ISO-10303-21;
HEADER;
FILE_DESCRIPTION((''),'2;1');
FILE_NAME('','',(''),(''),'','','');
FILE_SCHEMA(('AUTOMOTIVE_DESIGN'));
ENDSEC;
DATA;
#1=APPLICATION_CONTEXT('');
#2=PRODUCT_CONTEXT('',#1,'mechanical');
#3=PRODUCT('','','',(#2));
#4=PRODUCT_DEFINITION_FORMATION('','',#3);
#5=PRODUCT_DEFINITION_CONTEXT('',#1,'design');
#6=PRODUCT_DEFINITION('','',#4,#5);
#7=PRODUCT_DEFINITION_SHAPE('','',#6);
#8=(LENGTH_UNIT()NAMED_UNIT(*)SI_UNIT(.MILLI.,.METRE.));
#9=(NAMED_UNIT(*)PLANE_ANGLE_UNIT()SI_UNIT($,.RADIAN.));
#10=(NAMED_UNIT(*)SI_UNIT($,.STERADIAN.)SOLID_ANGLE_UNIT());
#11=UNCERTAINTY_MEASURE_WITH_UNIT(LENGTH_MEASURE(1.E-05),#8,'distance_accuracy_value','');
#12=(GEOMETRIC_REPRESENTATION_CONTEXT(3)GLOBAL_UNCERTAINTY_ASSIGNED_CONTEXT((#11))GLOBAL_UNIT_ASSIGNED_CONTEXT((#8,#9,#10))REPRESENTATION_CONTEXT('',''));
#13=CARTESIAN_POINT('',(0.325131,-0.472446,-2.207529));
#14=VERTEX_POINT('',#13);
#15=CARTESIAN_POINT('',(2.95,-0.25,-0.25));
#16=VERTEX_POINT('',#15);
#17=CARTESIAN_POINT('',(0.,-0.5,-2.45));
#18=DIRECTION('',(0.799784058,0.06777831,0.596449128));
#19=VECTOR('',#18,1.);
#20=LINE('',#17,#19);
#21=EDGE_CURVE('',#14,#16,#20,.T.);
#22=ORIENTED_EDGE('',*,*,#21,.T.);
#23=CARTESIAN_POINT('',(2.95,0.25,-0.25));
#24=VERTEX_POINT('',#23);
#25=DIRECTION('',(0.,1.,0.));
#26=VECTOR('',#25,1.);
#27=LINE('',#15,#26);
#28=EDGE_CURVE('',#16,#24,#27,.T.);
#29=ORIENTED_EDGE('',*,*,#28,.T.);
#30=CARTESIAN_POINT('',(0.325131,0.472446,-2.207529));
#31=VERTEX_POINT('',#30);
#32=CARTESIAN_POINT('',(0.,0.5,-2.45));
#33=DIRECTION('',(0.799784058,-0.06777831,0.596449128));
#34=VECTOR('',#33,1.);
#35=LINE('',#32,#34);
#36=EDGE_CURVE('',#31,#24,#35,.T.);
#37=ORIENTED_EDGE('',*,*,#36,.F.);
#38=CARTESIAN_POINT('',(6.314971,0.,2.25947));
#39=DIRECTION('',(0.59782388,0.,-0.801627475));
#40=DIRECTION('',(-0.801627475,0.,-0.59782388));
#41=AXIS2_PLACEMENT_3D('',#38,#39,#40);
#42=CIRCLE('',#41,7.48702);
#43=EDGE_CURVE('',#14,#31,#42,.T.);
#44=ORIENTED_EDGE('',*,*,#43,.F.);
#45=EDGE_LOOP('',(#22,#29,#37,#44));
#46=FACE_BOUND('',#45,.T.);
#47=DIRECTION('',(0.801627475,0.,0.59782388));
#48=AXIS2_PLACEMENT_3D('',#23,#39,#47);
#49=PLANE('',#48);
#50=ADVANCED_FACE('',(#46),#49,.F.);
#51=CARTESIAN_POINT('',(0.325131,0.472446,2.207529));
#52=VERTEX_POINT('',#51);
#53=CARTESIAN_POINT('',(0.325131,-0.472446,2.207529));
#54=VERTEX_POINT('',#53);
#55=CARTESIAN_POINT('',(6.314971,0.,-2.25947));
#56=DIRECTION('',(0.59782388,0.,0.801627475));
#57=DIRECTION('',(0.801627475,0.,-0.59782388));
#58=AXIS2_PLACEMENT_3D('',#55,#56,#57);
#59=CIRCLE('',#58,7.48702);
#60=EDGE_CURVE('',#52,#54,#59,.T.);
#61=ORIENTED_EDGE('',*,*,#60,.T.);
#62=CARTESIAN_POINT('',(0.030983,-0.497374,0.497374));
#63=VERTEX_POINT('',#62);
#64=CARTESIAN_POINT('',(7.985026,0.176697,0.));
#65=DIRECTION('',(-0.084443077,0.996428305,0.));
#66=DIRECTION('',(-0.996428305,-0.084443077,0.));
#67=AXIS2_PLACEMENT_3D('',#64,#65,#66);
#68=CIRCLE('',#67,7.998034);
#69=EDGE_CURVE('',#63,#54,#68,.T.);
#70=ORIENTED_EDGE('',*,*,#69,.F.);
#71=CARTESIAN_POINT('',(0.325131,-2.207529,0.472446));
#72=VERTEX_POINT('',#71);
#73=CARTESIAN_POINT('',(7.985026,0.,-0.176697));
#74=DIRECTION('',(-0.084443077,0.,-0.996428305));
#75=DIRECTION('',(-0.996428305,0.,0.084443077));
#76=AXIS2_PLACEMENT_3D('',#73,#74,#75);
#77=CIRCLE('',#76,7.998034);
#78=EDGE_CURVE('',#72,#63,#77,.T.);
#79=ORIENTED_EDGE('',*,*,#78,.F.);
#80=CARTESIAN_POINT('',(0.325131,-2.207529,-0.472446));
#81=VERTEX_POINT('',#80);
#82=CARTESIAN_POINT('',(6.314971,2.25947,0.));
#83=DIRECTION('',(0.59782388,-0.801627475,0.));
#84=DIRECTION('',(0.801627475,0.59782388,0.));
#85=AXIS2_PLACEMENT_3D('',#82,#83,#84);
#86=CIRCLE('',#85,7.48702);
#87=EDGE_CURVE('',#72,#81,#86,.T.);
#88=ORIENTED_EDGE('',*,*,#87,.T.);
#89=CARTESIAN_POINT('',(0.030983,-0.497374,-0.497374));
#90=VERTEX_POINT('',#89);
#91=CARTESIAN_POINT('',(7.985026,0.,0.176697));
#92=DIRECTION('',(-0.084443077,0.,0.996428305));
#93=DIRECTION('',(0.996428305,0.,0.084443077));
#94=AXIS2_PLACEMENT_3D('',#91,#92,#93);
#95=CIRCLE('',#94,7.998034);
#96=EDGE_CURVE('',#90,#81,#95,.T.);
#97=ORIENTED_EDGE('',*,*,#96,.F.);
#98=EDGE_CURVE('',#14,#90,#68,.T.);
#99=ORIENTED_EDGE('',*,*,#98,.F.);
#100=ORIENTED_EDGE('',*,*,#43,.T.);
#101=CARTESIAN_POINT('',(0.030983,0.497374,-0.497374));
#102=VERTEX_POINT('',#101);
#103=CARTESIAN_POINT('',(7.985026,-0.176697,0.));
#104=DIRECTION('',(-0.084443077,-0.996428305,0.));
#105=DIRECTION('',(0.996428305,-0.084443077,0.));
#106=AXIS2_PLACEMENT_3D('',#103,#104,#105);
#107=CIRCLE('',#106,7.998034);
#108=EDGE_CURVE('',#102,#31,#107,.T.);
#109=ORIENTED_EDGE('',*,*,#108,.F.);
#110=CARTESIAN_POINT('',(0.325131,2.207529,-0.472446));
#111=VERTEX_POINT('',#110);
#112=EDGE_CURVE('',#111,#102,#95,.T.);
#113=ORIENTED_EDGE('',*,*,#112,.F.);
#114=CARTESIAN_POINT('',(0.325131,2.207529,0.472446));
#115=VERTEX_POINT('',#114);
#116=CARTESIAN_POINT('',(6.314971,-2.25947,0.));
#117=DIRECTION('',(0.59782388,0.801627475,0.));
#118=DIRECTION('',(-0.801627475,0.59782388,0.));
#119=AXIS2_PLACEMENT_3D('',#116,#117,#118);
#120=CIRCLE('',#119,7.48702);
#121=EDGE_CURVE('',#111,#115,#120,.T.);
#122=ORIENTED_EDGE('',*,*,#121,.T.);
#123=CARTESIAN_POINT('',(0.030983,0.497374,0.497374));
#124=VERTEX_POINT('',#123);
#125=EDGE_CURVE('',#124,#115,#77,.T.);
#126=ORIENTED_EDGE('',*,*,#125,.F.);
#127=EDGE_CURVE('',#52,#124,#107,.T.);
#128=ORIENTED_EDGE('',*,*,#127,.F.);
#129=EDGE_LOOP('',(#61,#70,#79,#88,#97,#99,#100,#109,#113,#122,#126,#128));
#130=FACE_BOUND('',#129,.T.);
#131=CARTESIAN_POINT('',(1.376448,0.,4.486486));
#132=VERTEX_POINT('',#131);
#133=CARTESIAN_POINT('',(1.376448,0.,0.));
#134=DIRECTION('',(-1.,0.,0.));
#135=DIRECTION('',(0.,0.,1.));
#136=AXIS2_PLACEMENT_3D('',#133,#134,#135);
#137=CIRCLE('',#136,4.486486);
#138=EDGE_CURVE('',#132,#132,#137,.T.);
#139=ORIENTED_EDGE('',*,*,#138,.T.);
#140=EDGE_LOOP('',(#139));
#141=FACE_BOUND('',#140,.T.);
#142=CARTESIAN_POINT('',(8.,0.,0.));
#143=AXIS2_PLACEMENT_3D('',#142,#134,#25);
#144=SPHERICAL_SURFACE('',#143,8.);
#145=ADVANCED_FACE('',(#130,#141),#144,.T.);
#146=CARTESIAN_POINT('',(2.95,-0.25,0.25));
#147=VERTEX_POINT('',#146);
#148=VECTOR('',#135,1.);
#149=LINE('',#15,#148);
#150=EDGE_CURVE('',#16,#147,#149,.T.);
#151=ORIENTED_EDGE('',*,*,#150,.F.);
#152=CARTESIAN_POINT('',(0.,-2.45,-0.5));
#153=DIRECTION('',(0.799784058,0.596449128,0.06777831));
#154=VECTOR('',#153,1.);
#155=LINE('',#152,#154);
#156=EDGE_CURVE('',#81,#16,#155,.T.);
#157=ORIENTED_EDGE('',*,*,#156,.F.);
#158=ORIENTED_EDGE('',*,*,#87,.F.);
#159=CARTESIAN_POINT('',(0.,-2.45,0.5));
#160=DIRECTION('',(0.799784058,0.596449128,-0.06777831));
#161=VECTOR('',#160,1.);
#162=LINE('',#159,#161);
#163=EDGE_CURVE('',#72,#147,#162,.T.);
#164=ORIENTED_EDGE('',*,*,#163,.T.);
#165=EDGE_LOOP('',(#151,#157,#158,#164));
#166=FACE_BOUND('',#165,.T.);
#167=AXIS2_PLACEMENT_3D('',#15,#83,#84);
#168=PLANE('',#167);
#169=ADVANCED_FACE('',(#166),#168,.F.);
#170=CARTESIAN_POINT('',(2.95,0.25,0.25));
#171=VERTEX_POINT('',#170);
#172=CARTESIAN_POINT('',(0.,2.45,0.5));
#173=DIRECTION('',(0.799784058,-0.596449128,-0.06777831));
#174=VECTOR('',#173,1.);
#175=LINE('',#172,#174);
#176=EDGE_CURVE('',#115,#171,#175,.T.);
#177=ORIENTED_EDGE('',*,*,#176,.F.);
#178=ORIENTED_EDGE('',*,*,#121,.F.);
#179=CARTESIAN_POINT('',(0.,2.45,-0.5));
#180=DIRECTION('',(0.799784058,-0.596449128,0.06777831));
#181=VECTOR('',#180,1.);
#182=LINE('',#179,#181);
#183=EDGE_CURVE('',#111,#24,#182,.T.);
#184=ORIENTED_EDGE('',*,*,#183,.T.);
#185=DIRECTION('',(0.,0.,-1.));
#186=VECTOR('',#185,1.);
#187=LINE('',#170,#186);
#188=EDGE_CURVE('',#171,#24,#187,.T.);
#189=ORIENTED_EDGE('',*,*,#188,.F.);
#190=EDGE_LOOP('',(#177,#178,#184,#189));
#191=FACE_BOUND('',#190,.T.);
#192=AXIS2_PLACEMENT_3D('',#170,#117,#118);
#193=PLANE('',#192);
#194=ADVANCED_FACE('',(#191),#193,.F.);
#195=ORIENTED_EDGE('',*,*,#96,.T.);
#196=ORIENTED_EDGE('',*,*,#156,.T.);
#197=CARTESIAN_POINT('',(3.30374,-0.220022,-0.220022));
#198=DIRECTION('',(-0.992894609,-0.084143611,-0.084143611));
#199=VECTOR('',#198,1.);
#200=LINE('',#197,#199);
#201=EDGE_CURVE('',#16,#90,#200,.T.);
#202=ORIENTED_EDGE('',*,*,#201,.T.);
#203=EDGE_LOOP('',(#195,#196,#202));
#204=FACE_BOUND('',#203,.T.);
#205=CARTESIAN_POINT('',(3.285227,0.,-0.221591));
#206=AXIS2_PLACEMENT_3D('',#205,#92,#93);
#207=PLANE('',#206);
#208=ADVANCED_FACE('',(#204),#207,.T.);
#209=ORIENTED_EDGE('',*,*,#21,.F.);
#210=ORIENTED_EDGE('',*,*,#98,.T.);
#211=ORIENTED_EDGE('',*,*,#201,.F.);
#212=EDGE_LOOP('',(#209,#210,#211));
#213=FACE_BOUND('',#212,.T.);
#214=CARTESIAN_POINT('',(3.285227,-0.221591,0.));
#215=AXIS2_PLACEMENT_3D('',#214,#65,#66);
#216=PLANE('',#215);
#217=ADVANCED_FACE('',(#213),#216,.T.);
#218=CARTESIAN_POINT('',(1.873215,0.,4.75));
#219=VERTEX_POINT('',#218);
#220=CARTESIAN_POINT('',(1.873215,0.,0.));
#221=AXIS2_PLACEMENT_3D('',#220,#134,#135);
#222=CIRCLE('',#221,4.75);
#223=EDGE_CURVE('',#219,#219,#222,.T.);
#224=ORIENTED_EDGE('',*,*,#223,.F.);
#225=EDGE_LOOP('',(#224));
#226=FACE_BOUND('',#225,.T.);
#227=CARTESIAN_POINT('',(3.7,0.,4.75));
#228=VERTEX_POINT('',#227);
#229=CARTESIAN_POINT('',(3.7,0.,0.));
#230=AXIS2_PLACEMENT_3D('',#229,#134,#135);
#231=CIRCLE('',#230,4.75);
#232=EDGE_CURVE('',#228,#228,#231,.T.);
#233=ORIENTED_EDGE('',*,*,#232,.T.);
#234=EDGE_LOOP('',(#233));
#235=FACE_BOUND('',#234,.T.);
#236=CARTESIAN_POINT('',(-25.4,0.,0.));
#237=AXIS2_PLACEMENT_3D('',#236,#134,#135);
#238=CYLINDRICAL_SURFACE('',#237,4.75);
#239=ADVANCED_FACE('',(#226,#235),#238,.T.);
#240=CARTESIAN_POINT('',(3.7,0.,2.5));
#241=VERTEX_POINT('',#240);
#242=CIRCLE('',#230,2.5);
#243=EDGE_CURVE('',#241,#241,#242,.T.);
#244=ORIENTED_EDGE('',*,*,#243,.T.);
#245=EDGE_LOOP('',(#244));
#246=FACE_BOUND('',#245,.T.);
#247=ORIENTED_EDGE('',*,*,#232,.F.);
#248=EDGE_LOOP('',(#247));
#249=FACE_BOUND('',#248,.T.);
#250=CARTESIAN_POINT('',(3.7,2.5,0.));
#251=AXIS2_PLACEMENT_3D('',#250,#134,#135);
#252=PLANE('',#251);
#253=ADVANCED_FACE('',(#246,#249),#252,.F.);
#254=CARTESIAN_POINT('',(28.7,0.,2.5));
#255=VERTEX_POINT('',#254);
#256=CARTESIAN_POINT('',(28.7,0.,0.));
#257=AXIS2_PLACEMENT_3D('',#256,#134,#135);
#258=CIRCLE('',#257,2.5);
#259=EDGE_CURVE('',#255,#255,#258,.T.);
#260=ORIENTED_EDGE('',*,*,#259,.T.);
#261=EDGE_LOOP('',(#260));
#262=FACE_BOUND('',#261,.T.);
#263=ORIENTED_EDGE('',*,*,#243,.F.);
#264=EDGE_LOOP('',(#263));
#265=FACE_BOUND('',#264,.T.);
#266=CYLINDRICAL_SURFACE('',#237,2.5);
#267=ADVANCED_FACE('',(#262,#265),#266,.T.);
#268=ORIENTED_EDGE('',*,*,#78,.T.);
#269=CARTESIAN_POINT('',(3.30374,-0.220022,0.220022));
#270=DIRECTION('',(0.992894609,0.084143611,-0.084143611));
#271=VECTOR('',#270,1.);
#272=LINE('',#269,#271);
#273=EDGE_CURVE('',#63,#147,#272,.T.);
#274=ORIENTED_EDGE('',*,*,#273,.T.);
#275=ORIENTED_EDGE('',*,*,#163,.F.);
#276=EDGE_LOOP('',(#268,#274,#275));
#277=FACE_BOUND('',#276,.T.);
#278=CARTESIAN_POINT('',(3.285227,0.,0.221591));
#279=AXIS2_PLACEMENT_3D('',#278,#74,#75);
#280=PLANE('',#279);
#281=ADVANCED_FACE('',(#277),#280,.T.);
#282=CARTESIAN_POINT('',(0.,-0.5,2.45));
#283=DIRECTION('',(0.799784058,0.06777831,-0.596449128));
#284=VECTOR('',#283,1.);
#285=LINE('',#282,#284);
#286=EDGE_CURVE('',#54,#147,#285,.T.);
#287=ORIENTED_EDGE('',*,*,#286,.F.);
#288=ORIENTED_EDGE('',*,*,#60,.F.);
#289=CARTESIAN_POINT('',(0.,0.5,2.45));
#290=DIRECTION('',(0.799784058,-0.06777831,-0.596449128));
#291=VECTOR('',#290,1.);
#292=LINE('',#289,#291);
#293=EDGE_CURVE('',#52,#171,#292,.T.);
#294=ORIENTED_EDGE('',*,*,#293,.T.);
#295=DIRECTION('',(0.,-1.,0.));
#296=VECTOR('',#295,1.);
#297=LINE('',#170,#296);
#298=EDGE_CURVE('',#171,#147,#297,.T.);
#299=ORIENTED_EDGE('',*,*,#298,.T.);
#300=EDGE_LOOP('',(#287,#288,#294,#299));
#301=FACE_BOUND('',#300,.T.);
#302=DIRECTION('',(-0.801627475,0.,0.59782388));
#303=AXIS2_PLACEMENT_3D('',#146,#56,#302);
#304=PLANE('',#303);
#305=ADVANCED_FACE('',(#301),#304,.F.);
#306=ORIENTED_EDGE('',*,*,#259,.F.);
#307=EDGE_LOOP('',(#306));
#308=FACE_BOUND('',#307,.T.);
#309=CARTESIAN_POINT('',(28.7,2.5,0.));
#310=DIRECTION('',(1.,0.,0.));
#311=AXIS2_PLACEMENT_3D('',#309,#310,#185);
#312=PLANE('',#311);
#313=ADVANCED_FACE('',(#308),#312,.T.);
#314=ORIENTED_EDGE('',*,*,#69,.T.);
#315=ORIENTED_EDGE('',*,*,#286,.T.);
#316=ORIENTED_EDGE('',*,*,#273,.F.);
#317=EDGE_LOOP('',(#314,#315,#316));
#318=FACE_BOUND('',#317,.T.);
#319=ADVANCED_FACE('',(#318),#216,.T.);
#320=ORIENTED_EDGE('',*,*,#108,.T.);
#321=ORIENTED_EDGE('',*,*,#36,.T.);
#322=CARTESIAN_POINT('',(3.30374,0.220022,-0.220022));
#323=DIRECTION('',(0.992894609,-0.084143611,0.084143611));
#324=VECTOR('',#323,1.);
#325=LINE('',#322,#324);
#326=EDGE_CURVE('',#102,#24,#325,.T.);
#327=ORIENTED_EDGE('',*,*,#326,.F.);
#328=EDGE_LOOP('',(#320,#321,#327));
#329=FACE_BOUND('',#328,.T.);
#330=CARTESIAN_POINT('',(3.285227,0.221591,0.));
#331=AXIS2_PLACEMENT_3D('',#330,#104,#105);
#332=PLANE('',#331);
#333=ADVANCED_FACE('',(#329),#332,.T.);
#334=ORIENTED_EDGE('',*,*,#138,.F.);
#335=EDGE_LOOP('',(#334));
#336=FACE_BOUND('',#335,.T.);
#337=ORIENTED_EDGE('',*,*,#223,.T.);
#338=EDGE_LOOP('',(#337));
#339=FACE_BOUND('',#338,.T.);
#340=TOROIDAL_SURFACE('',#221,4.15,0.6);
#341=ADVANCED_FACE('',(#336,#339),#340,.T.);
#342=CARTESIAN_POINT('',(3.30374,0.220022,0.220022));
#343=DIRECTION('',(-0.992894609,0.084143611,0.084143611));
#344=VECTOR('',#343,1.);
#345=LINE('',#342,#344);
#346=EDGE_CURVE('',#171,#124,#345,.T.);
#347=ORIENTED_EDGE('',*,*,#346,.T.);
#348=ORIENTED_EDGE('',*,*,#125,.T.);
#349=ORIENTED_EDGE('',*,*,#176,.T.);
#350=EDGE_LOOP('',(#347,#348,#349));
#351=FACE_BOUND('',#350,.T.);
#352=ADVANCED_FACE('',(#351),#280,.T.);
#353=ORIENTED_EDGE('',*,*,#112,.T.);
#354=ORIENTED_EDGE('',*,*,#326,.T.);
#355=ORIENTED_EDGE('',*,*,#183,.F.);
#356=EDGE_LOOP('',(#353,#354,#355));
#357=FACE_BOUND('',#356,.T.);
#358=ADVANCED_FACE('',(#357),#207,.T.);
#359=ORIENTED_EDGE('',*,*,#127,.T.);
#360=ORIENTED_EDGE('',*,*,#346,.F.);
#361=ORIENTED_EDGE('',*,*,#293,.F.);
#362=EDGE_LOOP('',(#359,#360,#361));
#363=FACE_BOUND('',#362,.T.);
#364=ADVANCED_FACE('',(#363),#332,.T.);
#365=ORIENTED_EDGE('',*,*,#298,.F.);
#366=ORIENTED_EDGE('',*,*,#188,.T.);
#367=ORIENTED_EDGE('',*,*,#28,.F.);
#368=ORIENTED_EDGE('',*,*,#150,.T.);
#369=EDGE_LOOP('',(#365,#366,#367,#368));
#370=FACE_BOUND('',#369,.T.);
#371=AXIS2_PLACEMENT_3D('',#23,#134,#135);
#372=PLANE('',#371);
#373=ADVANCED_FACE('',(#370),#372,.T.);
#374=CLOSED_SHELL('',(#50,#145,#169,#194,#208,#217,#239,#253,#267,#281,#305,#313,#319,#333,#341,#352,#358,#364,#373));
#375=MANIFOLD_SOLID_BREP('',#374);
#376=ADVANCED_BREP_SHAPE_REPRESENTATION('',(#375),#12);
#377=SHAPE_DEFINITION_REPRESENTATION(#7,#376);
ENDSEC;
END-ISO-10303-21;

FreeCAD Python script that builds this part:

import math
import FreeCAD as App
import Part
import Sketcher


def add_polygon(sketch, points):
    """Adds a closed chain of lines whose ends are joined by coincident constraints."""
    first, n = sketch.GeometryCount, len(points)
    for a, b in zip(points, points[1:] + points[:1]):
        sketch.addGeometry(Part.LineSegment(App.Vector(*a, 0), App.Vector(*b, 0)), False)
    for i in range(n):
        sketch.addConstraint(Sketcher.Constraint("Coincident", first + i, 2, first + (i + 1) % n, 1))

doc = App.newDocument("Part")
body = doc.addObject("PartDesign::Body", "Body")

sketch1 = doc.addObject("Sketcher::SketchObject", "Sketch")
body.addObject(sketch1)
sketch1.AttachmentSupport = (doc.XY_Plane, [""])
sketch1.MapMode = "FlatFace"
sketch1.addGeometry([
    Part.LineSegment(App.Vector(3.7, 2.5, 0), App.Vector(3.7, 4.8, 0)),
    Part.LineSegment(App.Vector(3.7, 4.8, 0), App.Vector(1.9, 4.8, 0)),
    Part.ArcOfCircle(Part.Circle(App.Vector(1.9, 4.1, 0), App.Vector(0, 0, 1), 0.6), math.radians(90), math.radians(146)),
    Part.ArcOfCircle(Part.Circle(App.Vector(8, 0, 0), App.Vector(0, 0, 1), 8), math.radians(146), math.radians(180)),
    Part.LineSegment(App.Vector(0, 0, 0), App.Vector(28.7, 0, 0)),
    Part.LineSegment(App.Vector(28.7, 0, 0), App.Vector(28.7, 2.5, 0)),
    Part.LineSegment(App.Vector(28.7, 2.5, 0), App.Vector(3.7, 2.5, 0)),
], False)
sketch1.addConstraint([
    Sketcher.Constraint("Coincident", 0, 2, 1, 1),
    Sketcher.Constraint("Tangent", 1, 2, 2, 1),
    Sketcher.Constraint("Tangent", 2, 2, 3, 1),
    Sketcher.Constraint("Coincident", 3, 2, 4, 1),
    Sketcher.Constraint("Coincident", 4, 2, 5, 1),
    Sketcher.Constraint("Coincident", 5, 2, 6, 1),
    Sketcher.Constraint("Coincident", 6, 2, 0, 1),
    Sketcher.Constraint("Vertical", 0),
    Sketcher.Constraint("Horizontal", 1),
    Sketcher.Constraint("Horizontal", 4),
    Sketcher.Constraint("Vertical", 5),
    Sketcher.Constraint("Horizontal", 6),
    Sketcher.Constraint("Coincident", 3, 2, -1, 1),
    Sketcher.Constraint("PointOnObject", 3, 3, -1),
    Sketcher.Constraint("Radius", 3, 8.0),
    Sketcher.Constraint("Radius", 2, 0.6),
    Sketcher.Constraint("DistanceX", 6, 2, 6, 1, 25.0),
    Sketcher.Constraint("DistanceX", 4, 1, 4, 2, 28.7),
    Sketcher.Constraint("DistanceY", 5, 1, 5, 2, 2.5),
    Sketcher.Constraint("DistanceY", 0, 1, 0, 2, 2.25),
])
revolution = doc.addObject("PartDesign::Revolution", "Revolution")
body.addObject(revolution)
revolution.Profile = sketch1
revolution.ReferenceAxis = (sketch1, ["H_Axis"])
revolution.Angle = 360

sketch2 = doc.addObject("Sketcher::SketchObject", "Sketch001")
body.addObject(sketch2)
sketch2.AttachmentSupport = (doc.YZ_Plane, [""])
sketch2.MapMode = "FlatFace"
add_polygon(sketch2, [(-2.5, 0.5), (-2.5, -0.5), (2.5, -0.5), (2.5, 0.5)])
sketch2.addConstraint([
    Sketcher.Constraint("Vertical", 0),
    Sketcher.Constraint("Horizontal", 1),
    Sketcher.Constraint("Vertical", 2),
    Sketcher.Constraint("Horizontal", 3),
    Sketcher.Constraint("Symmetric", 0, 2, 2, 2, -1, 1),
    Sketcher.Constraint("DistanceY", 0, 2, 0, 1, 1.0),
    Sketcher.Constraint("DistanceX", 1, 1, 1, 2, 4.9),
])

sketch3 = doc.addObject("Sketcher::SketchObject", "Sketch002")
body.addObject(sketch3)
sketch3.AttachmentSupport = (doc.YZ_Plane, [""])
sketch3.MapMode = "FlatFace"
sketch3.AttachmentOffset = App.Placement(App.Vector(0, 0, 2.95), App.Rotation())
add_polygon(sketch3, [(-0.2, 0.2), (-0.2, -0.2), (0.2, -0.2), (0.2, 0.2)])
sketch3.addConstraint([
    Sketcher.Constraint("Vertical", 0),
    Sketcher.Constraint("Horizontal", 1),
    Sketcher.Constraint("Vertical", 2),
    Sketcher.Constraint("Horizontal", 3),
    Sketcher.Constraint("Symmetric", 0, 2, 2, 2, -1, 1),
    Sketcher.Constraint("Equal", 3, 0),
    Sketcher.Constraint("DistanceX", 1, 1, 1, 2, 0.5),
])

subtractiveloft = doc.addObject("PartDesign::SubtractiveLoft", "SubtractiveLoft")
body.addObject(subtractiveloft)
subtractiveloft.Profile = sketch2
subtractiveloft.Sections = [sketch3]
doc.recompute()

polarpattern = doc.addObject("PartDesign::PolarPattern", "PolarPattern")
body.addObject(polarpattern)
polarpattern.Originals = [subtractiveloft]
polarpattern.Axis = (doc.X_Axis, [""])
polarpattern.Angle = 90
polarpattern.Occurrences = 2
body.Tip = polarpattern

doc.recompute()
